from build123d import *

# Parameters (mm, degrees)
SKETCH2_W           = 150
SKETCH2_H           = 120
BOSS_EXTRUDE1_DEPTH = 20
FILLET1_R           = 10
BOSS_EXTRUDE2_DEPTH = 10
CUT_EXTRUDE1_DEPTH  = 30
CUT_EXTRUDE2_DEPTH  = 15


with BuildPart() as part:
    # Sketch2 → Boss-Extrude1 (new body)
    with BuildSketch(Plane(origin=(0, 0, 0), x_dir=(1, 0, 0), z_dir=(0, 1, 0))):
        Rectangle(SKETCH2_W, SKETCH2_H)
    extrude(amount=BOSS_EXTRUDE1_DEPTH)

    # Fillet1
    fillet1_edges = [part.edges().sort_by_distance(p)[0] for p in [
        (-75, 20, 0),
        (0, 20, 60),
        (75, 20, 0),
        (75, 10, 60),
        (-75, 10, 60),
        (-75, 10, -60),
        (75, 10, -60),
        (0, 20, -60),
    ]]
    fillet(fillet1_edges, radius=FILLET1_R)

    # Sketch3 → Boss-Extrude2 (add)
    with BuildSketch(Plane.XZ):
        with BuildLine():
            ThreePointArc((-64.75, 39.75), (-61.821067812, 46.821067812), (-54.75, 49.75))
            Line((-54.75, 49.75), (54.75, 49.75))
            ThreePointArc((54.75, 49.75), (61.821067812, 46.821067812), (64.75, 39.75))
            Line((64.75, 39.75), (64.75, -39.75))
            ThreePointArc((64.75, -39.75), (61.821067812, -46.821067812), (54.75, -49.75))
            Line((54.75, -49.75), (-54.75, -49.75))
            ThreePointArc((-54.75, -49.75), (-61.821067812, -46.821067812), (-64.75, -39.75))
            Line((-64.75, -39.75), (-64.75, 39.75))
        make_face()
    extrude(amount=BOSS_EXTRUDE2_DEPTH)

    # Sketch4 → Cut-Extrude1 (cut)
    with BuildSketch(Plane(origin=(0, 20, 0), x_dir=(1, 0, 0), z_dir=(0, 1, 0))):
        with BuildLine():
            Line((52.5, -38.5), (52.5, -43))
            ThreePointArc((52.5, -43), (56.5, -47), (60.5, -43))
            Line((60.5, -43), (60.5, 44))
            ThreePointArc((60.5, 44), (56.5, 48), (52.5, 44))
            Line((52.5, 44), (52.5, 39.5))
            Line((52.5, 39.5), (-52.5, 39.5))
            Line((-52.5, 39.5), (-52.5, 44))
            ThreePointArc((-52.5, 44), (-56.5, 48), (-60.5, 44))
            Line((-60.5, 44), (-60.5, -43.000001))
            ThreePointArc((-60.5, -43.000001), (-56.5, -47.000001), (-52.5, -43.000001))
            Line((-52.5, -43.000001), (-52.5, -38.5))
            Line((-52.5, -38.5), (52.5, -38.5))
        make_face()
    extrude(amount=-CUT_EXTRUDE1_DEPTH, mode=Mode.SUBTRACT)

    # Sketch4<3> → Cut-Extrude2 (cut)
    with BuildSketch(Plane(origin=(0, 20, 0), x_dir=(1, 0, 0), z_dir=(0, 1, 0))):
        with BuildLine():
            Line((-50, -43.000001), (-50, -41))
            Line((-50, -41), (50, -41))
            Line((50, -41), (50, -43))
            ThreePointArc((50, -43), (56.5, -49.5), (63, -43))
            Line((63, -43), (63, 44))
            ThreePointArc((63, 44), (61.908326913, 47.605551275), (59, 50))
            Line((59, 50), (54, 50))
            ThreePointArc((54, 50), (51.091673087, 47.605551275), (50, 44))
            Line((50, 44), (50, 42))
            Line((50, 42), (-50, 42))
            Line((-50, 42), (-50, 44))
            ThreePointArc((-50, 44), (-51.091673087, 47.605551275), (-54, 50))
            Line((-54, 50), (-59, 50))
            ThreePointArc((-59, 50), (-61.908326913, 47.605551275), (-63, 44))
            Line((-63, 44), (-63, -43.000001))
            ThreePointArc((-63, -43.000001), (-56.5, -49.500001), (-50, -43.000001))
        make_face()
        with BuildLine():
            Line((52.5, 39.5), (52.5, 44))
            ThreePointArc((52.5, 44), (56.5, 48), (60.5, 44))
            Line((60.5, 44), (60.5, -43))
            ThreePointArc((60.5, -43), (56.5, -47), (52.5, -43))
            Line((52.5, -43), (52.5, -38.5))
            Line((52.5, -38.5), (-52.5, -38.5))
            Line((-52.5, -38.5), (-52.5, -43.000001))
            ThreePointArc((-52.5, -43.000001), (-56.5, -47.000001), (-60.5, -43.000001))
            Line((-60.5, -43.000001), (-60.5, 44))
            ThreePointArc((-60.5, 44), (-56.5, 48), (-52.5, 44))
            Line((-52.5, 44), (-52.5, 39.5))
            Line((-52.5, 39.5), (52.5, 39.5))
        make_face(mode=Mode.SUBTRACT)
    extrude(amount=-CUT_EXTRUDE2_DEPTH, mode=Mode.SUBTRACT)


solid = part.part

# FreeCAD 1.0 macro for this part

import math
import FreeCAD as App
import Part
import Sketcher

V = App.Vector
Q = App.Units.Quantity


def edges_at(feature, points):
    """Names of the edges that pass closest to the given points."""
    edges = feature.Shape.Edges
    near = lambda p: min(range(len(edges)), key=lambda i: edges[i].distToShape(Part.Vertex(*p))[0])
    return sorted({f"Edge{near(p) + 1}" for p in points})

doc = App.newDocument("Part")
params = doc.addObject("Spreadsheet::Sheet", "Params")
for row, (alias, value) in enumerate([
    ("sketch1_width", "150 mm"),
    ("sketch1_height", "120 mm"),
    ("pad1_length", "20 mm"),
    ("fillet_radius", "10 mm"),
    ("sketch2_radius", "10 mm"),
    ("sketch2_width", "109.5 mm"),
    ("sketch2_height", "79.5 mm"),
    ("pad2_length", "10 mm"),
    ("sketch3_radius", "4 mm"),
    ("sketch3_width", "105 mm"),
    ("sketch3_height", "87 mm"),
    ("sketch3_height2", "4.5 mm"),
    ("pocket1_length", "30 mm"),
    ("sketch4_radius", "4 mm"),
    ("sketch4_radius2", "6.5 mm"),
    ("sketch4_width", "100 mm"),
    ("sketch4_width2", "5 mm"),
    ("sketch4_height", "2.000001 mm"),
    ("pocket2_length", "15 mm"),
], start=1):
    params.set(f"A{row}", alias)
    params.set(f"B{row}", "=" + value)
    params.setAlias(f"B{row}", alias)

body = doc.addObject("PartDesign::Body", "Body")

# Sketch on XZ plane
sketch1 = body.newObject("Sketcher::SketchObject", "Sketch")
sketch1.AttachmentSupport = (doc.getObject("XZ_Plane"), [""])
sketch1.MapMode = "FlatFace"
sketch1.addGeometry(Part.LineSegment(V(-75, -60, 0), V(-75, 60, 0)), False)
sketch1.addGeometry(Part.LineSegment(V(-75, 60, 0), V(75, 60, 0)), False)
sketch1.addGeometry(Part.LineSegment(V(75, 60, 0), V(75, -60, 0)), False)
sketch1.addGeometry(Part.LineSegment(V(75, -60, 0), V(-75, -60, 0)), False)
sketch1.addConstraint(Sketcher.Constraint("Coincident", 0, 2, 1, 1))
sketch1.addConstraint(Sketcher.Constraint("Coincident", 1, 2, 2, 1))
sketch1.addConstraint(Sketcher.Constraint("Coincident", 2, 2, 3, 1))
sketch1.addConstraint(Sketcher.Constraint("Coincident", 3, 2, 0, 1))
sketch1.addConstraint(Sketcher.Constraint("Vertical", 0))
sketch1.addConstraint(Sketcher.Constraint("Horizontal", 1))
sketch1.addConstraint(Sketcher.Constraint("Vertical", 2))
sketch1.addConstraint(Sketcher.Constraint("Horizontal", 3))
sketch1.addConstraint(Sketcher.Constraint("Symmetric", 0, 2, 2, 2, -1, 1))
sketch1.addConstraint(Sketcher.Constraint("DistanceX", 1, 1, 1, 2, Q("150 mm")))
sketch1.addConstraint(Sketcher.Constraint("DistanceY", 0, 1, 0, 2, Q("120 mm")))
sketch1.setExpression("Constraints[9]", "Params.sketch1_width")
sketch1.setExpression("Constraints[10]", "Params.sketch1_height")
pad1 = body.newObject("PartDesign::Pad", "Pad")
pad1.Profile = sketch1
pad1.setExpression("Length", "Params.pad1_length")
pad1.Reversed = True
doc.recompute()

fillet = body.newObject("PartDesign::Fillet", "Fillet")
fillet.Base = (pad1, edges_at(pad1, [
    (-75, 20, 0),
    (0, 20, 60),
    (75, 20, 0),
    (75, 10, 60),
    (-75, 10, 60),
    (-75, 10, -60),
    (75, 10, -60),
    (0, 20, -60),
]))
fillet.setExpression("Radius", "Params.fillet_radius")

# Sketch on XZ plane
sketch2 = body.newObject("Sketcher::SketchObject", "Sketch001")
sketch2.AttachmentSupport = (doc.getObject("XZ_Plane"), [""])
sketch2.MapMode = "FlatFace"
sketch2.addGeometry(Part.ArcOfCircle(Part.Circle(V(-54.75, 39.75, 0), V(0, 0, 1), 10), math.radians(90), math.radians(180)), False)
sketch2.addGeometry(Part.LineSegment(V(-64.75, 39.75, 0), V(-64.75, -39.75, 0)), False)
sketch2.addGeometry(Part.ArcOfCircle(Part.Circle(V(-54.75, -39.75, 0), V(0, 0, 1), 10), math.radians(180), math.radians(270)), False)
sketch2.addGeometry(Part.LineSegment(V(-54.75, -49.75, 0), V(54.75, -49.75, 0)), False)
sketch2.addGeometry(Part.ArcOfCircle(Part.Circle(V(54.75, -39.75, 0), V(0, 0, 1), 10), math.radians(-90), math.radians(0)), False)
sketch2.addGeometry(Part.LineSegment(V(64.75, -39.75, 0), V(64.75, 39.75, 0)), False)
sketch2.addGeometry(Part.ArcOfCircle(Part.Circle(V(54.75, 39.75, 0), V(0, 0, 1), 10), math.radians(0), math.radians(90)), False)
sketch2.addGeometry(Part.LineSegment(V(54.75, 49.75, 0), V(-54.75, 49.75, 0)), False)
sketch2.addConstraint(Sketcher.Constraint("Tangent", 0, 2, 1, 1))
sketch2.addConstraint(Sketcher.Constraint("Tangent", 1, 2, 2, 1))
sketch2.addConstraint(Sketcher.Constraint("Tangent", 2, 2, 3, 1))
sketch2.addConstraint(Sketcher.Constraint("Tangent", 3, 2, 4, 1))
sketch2.addConstraint(Sketcher.Constraint("Tangent", 4, 2, 5, 1))
sketch2.addConstraint(Sketcher.Constraint("Tangent", 5, 2, 6, 1))
sketch2.addConstraint(Sketcher.Constraint("Tangent", 6, 2, 7, 1))
sketch2.addConstraint(Sketcher.Constraint("Tangent", 7, 2, 0, 1))
sketch2.addConstraint(Sketcher.Constraint("Vertical", 1))
sketch2.addConstraint(Sketcher.Constraint("Horizontal", 3))
sketch2.addConstraint(Sketcher.Constraint("Vertical", 5))
sketch2.addConstraint(Sketcher.Constraint("Horizontal", 7))
sketch2.addConstraint(Sketcher.Constraint("Equal", 0, 2))
sketch2.addConstraint(Sketcher.Constraint("Equal", 2, 4))
sketch2.addConstraint(Sketcher.Constraint("Equal", 4, 6))
sketch2.addConstraint(Sketcher.Constraint("Symmetric", 0, 3, 4, 3, -1, 1))
sketch2.addConstraint(Sketcher.Constraint("Radius", 0, Q("10 mm")))
sketch2.addConstraint(Sketcher.Constraint("DistanceX", 3, 1, 3, 2, Q("109.5 mm")))
sketch2.addConstraint(Sketcher.Constraint("DistanceY", 1, 2, 1, 1, Q("79.5 mm")))
sketch2.setExpression("Constraints[16]", "Params.sketch2_radius")
sketch2.setExpression("Constraints[17]", "Params.sketch2_width")
sketch2.setExpression("Constraints[18]", "Params.sketch2_height")
pad2 = body.newObject("PartDesign::Pad", "Pad001")
pad2.Profile = sketch2
pad2.setExpression("Length", "Params.pad2_length")

# Sketch on XZ plane
sketch3 = body.newObject("Sketcher::SketchObject", "Sketch002")
sketch3.AttachmentSupport = (doc.getObject("XZ_Plane"), [""])
sketch3.MapMode = "FlatFace"
sketch3.AttachmentOffset = App.Placement(V(0, 0, -20), App.Rotation())
sketch3.addGeometry(Part.LineSegment(V(52.5, 38.5, 0), V(52.5, 43, 0)), False)
sketch3.addGeometry(Part.ArcOfCircle(Part.Circle(V(56.5, 43, 0), V(0, 0, 1), 4), math.radians(0), math.radians(180)), False)
sketch3.addGeometry(Part.LineSegment(V(60.5, 43, 0), V(60.5, -44, 0)), False)
sketch3.addGeometry(Part.ArcOfCircle(Part.Circle(V(56.5, -44, 0), V(0, 0, 1), 4), math.radians(180), math.radians(360)), False)
sketch3.addGeometry(Part.LineSegment(V(52.5, -44, 0), V(52.5, -39.5, 0)), False)
sketch3.addGeometry(Part.LineSegment(V(52.5, -39.5, 0), V(-52.5, -39.5, 0)), False)
sketch3.addGeometry(Part.LineSegment(V(-52.5, -39.5, 0), V(-52.5, -44, 0)), False)
sketch3.addGeometry(Part.ArcOfCircle(Part.Circle(V(-56.5, -44, 0), V(0, 0, 1), 4), math.radians(180), math.radians(360)), False)
sketch3.addGeometry(Part.LineSegment(V(-60.5, -44, 0), V(-60.5, 43.000001, 0)), False)
sketch3.addGeometry(Part.ArcOfCircle(Part.Circle(V(-56.5, 43.000001, 0), V(0, 0, 1), 4), math.radians(0), math.radians(180)), False)
sketch3.addGeometry(Part.LineSegment(V(-52.5, 43.000001, 0), V(-52.5, 38.5, 0)), False)
sketch3.addGeometry(Part.LineSegment(V(-52.5, 38.5, 0), V(52.5, 38.5, 0)), False)
sketch3.addConstraint(Sketcher.Constraint("Tangent", 0, 2, 1, 2))
sketch3.addConstraint(Sketcher.Constraint("Tangent", 1, 1, 2, 1))
sketch3.addConstraint(Sketcher.Constraint("Tangent", 2, 2, 3, 2))
sketch3.addConstraint(Sketcher.Constraint("Tangent", 3, 1, 4, 1))
sketch3.addConstraint(Sketcher.Constraint("Coincident", 4, 2, 5, 1))
sketch3.addConstraint(Sketcher.Constraint("Coincident", 5, 2, 6, 1))
sketch3.addConstraint(Sketcher.Constraint("Tangent", 6, 2, 7, 2))
sketch3.addConstraint(Sketcher.Constraint("Tangent", 7, 1, 8, 1))
sketch3.addConstraint(Sketcher.Constraint("Tangent", 8, 2, 9, 2))
sketch3.addConstraint(Sketcher.Constraint("Tangent", 9, 1, 10, 1))
sketch3.addConstraint(Sketcher.Constraint("Coincident", 10, 2, 11, 1))
sketch3.addConstraint(Sketcher.Constraint("Coincident", 11, 2, 0, 1))
sketch3.addConstraint(Sketcher.Constraint("Vertical", 0))
sketch3.addConstraint(Sketcher.Constraint("Vertical", 2))
sketch3.addConstraint(Sketcher.Constraint("Vertical", 4))
sketch3.addConstraint(Sketcher.Constraint("Horizontal", 5))
sketch3.addConstraint(Sketcher.Constraint("Vertical", 6))
sketch3.addConstraint(Sketcher.Constraint("Vertical", 8))
sketch3.addConstraint(Sketcher.Constraint("Vertical", 10))
sketch3.addConstraint(Sketcher.Constraint("Horizontal", 11))
sketch3.addConstraint(Sketcher.Constraint("Equal", 1, 3))
sketch3.addConstraint(Sketcher.Constraint("Equal", 3, 7))
sketch3.addConstraint(Sketcher.Constraint("Equal", 7, 9))
sketch3.addConstraint(Sketcher.Constraint("Symmetric", 3, 3, 7, 3, -2))
sketch3.addConstraint(Sketcher.Constraint("Horizontal", 1, 3, 9, 3))
sketch3.addConstraint(Sketcher.Constraint("Equal", 0, 4))
sketch3.addConstraint(Sketcher.Constraint("Radius", 1, Q("4 mm")))
sketch3.addConstraint(Sketcher.Constraint("DistanceX", 5, 2, 5, 1, Q("105 mm")))
sketch3.addConstraint(Sketcher.Constraint("DistanceY", 2, 2, 2, 1, Q("87 mm")))
sketch3.addConstraint(Sketcher.Constraint("DistanceY", 0, 1, 0, 2, Q("4.5 mm")))
sketch3.addConstraint(Sketcher.Constraint("DistanceY", -1, 1, 1, 3, Q("43 mm")))
sketch3.setExpression("Constraints[26]", "Params.sketch3_radius")
sketch3.setExpression("Constraints[27]", "Params.sketch3_width")
sketch3.setExpression("Constraints[28]", "Params.sketch3_height")
sketch3.setExpression("Constraints[29]", "Params.sketch3_height2")
pocket1 = body.newObject("PartDesign::Pocket", "Pocket")
pocket1.Profile = sketch3
pocket1.setExpression("Length", "Params.pocket1_length")
pocket1.Reversed = True

# Sketch on XZ plane
sketch4 = body.newObject("Sketcher::SketchObject", "Sketch003")
sketch4.AttachmentSupport = (doc.getObject("XZ_Plane"), [""])
sketch4.MapMode = "FlatFace"
sketch4.AttachmentOffset = App.Placement(V(0, 0, -20), App.Rotation())
sketch4.addGeometry(Part.LineSegment(V(-50, 43.000001, 0), V(-50, 41, 0)), False)
sketch4.addGeometry(Part.LineSegment(V(-50, 41, 0), V(50, 41, 0)), False)
sketch4.addGeometry(Part.LineSegment(V(50, 41, 0), V(50, 43, 0)), False)
sketch4.addGeometry(Part.ArcOfCircle(Part.Circle(V(56.5, 43, 0), V(0, 0, 1), 6.5), math.radians(0), math.radians(180)), False)
sketch4.addGeometry(Part.LineSegment(V(63, 43, 0), V(63, -44, 0)), False)
sketch4.addGeometry(Part.ArcOfCircle(Part.Circle(V(56.5, -44, 0), V(0, 0, 1), 6.5), math.radians(-67.380135), math.radians(0)), False)
sketch4.addGeometry(Part.LineSegment(V(59, -50, 0), V(54, -50, 0)), False)
sketch4.addGeometry(Part.ArcOfCircle(Part.Circle(V(56.5, -44, 0), V(0, 0, 1), 6.5), math.radians(-180), math.radians(-112.619865)), False)
sketch4.addGeometry(Part.LineSegment(V(50, -44, 0), V(50, -42, 0)), False)
sketch4.addGeometry(Part.LineSegment(V(50, -42, 0), V(-50, -42, 0)), False)
sketch4.addGeometry(Part.LineSegment(V(-50, -42, 0), V(-50, -44, 0)), False)
sketch4.addGeometry(Part.ArcOfCircle(Part.Circle(V(-56.5, -44, 0), V(0, 0, 1), 6.5), math.radians(-67.380135), math.radians(0)), False)
sketch4.addGeometry(Part.LineSegment(V(-54, -50, 0), V(-59, -50, 0)), False)
sketch4.addGeometry(Part.ArcOfCircle(Part.Circle(V(-56.5, -44, 0), V(0, 0, 1), 6.5), math.radians(-180), math.radians(-112.619865)), False)
sketch4.addGeometry(Part.LineSegment(V(-63, -44, 0), V(-63, 43.000001, 0)), False)
sketch4.addGeometry(Part.ArcOfCircle(Part.Circle(V(-56.5, 43.000001, 0), V(0, 0, 1), 6.5), math.radians(0), math.radians(180)), False)
sketch4.addGeometry(Part.LineSegment(V(-52.5, -39.5, 0), V(52.5, -39.5, 0)), False)
sketch4.addGeometry(Part.LineSegment(V(52.5, -39.5, 0), V(52.5, -44, 0)), False)
sketch4.addGeometry(Part.ArcOfCircle(Part.Circle(V(56.5, -44, 0), V(0, 0, 1), 4), math.radians(180), math.radians(360)), False)
sketch4.addGeometry(Part.LineSegment(V(60.5, -44, 0), V(60.5, 43, 0)), False)
sketch4.addGeometry(Part.ArcOfCircle(Part.Circle(V(56.5, 43, 0), V(0, 0, 1), 4), math.radians(0), math.radians(180)), False)
sketch4.addGeometry(Part.LineSegment(V(52.5, 43, 0), V(52.5, 38.5, 0)), False)
sketch4.addGeometry(Part.LineSegment(V(52.5, 38.5, 0), V(-52.5, 38.5, 0)), False)
sketch4.addGeometry(Part.LineSegment(V(-52.5, 38.5, 0), V(-52.5, 43.000001, 0)), False)
sketch4.addGeometry(Part.ArcOfCircle(Part.Circle(V(-56.5, 43.000001, 0), V(0, 0, 1), 4), math.radians(0), math.radians(180)), False)
sketch4.addGeometry(Part.LineSegment(V(-60.5, 43.000001, 0), V(-60.5, -44, 0)), False)
sketch4.addGeometry(Part.ArcOfCircle(Part.Circle(V(-56.5, -44, 0), V(0, 0, 1), 4), math.radians(180), math.radians(360)), False)
sketch4.addGeometry(Part.LineSegment(V(-52.5, -44, 0), V(-52.5, -39.5, 0)), False)
sketch4.addConstraint(Sketcher.Constraint("Coincident", 0, 2, 1, 1))
sketch4.addConstraint(Sketcher.Constraint("Coincident", 1, 2, 2, 1))
sketch4.addConstraint(Sketcher.Constraint("Tangent", 2, 2, 3, 2))
sketch4.addConstraint(Sketcher.Constraint("Tangent", 3, 1, 4, 1))
sketch4.addConstraint(Sketcher.Constraint("Tangent", 4, 2, 5, 2))
sketch4.addConstraint(Sketcher.Constraint("Coincident", 5, 1, 6, 1))
sketch4.addConstraint(Sketcher.Constraint("Coincident", 6, 2, 7, 2))
sketch4.addConstraint(Sketcher.Constraint("Tangent", 7, 1, 8, 1))
sketch4.addConstraint(Sketcher.Constraint("Coincident", 8, 2, 9, 1))
sketch4.addConstraint(Sketcher.Constraint("Coincident", 9, 2, 10, 1))
sketch4.addConstraint(Sketcher.Constraint("Tangent", 10, 2, 11, 2))
sketch4.addConstraint(Sketcher.Constraint("Coincident", 11, 1, 12, 1))
sketch4.addConstraint(Sketcher.Constraint("Coincident", 12, 2, 13, 2))
sketch4.addConstraint(Sketcher.Constraint("Tangent", 13, 1, 14, 1))
sketch4.addConstraint(Sketcher.Constraint("Tangent", 14, 2, 15, 2))
sketch4.addConstraint(Sketcher.Constraint("Tangent", 15, 1, 0, 1))
sketch4.addConstraint(Sketcher.Constraint("Coincident", 16, 2, 17, 1))
sketch4.addConstraint(Sketcher.Constraint("Tangent", 17, 2, 18, 1))
sketch4.addConstraint(Sketcher.Constraint("Tangent", 18, 2, 19, 1))
sketch4.addConstraint(Sketcher.Constraint("Tangent", 19, 2, 20, 1))
sketch4.addConstraint(Sketcher.Constraint("Tangent", 20, 2, 21, 1))
sketch4.addConstraint(Sketcher.Constraint("Coincident", 21, 2, 22, 1))
sketch4.addConstraint(Sketcher.Constraint("Coincident", 22, 2, 23, 1))
sketch4.addConstraint(Sketcher.Constraint("Tangent", 23, 2, 24, 1))
sketch4.addConstraint(Sketcher.Constraint("Tangent", 24, 2, 25, 1))
sketch4.addConstraint(Sketcher.Constraint("Tangent", 25, 2, 26, 1))
sketch4.addConstraint(Sketcher.Constraint("Tangent", 26, 2, 27, 1))
sketch4.addConstraint(Sketcher.Constraint("Coincident", 27, 2, 16, 1))
sketch4.addConstraint(Sketcher.Constraint("Vertical", 0))
sketch4.addConstraint(Sketcher.Constraint("Horizontal", 1))
sketch4.addConstraint(Sketcher.Constraint("Vertical", 2))
sketch4.addConstraint(Sketcher.Constraint("Vertical", 4))
sketch4.addConstraint(Sketcher.Constraint("Horizontal", 6))
sketch4.addConstraint(Sketcher.Constraint("Vertical", 8))
sketch4.addConstraint(Sketcher.Constraint("Horizontal", 9))
sketch4.addConstraint(Sketcher.Constraint("Vertical", 10))
sketch4.addConstraint(Sketcher.Constraint("Horizontal", 12))
sketch4.addConstraint(Sketcher.Constraint("Vertical", 14))
sketch4.addConstraint(Sketcher.Constraint("Horizontal", 16))
sketch4.addConstraint(Sketcher.Constraint("Vertical", 17))
sketch4.addConstraint(Sketcher.Constraint("Vertical", 19))
sketch4.addConstraint(Sketcher.Constraint("Vertical", 21))
sketch4.addConstraint(Sketcher.Constraint("Horizontal", 22))
sketch4.addConstraint(Sketcher.Constraint("Vertical", 23))
sketch4.addConstraint(Sketcher.Constraint("Vertical", 25))
sketch4.addConstraint(Sketcher.Constraint("Vertical", 27))
sketch4.addConstraint(Sketcher.Constraint("Coincident", 7, 3, 5, 3))
sketch4.addConstraint(Sketcher.Constraint("Coincident", 13, 3, 11, 3))
sketch4.addConstraint(Sketcher.Constraint("Coincident", 18, 3, 5, 3))
sketch4.addConstraint(Sketcher.Constraint("Coincident", 20, 3, 3, 3))
sketch4.addConstraint(Sketcher.Constraint("Coincident", 24, 3, 15, 3))
sketch4.addConstraint(Sketcher.Constraint("Coincident", 26, 3, 11, 3))
sketch4.addConstraint(Sketcher.Constraint("Equal", 3, 5))
sketch4.addConstraint(Sketcher.Constraint("Equal", 5, 7))
sketch4.addConstraint(Sketcher.Constraint("Equal", 7, 11))
sketch4.addConstraint(Sketcher.Constraint("Equal", 11, 13))
sketch4.addConstraint(Sketcher.Constraint("Equal", 13, 15))
sketch4.addConstraint(Sketcher.Constraint("Equal", 20, 24))
sketch4.addConstraint(Sketcher.Constraint("Symmetric", 5, 3, 11, 3, -2))
sketch4.addConstraint(Sketcher.Constraint("Horizontal", 3, 3, 15, 3))
sketch4.addConstraint(Sketcher.Constraint("Horizontal", 6, 2, 11, 1))
sketch4.addConstraint(Sketcher.Constraint("Equal", 2, 8))
sketch4.addConstraint(Sketcher.Constraint("Equal", 17, 21))
sketch4.addConstraint(Sketcher.Constraint("Radius", 18, Q("4 mm")))
sketch4.addConstraint(Sketcher.Constraint("Radius", 3, Q("6.5 mm")))
sketch4.addConstraint(Sketcher.Constraint("DistanceX", 1, 1, 1, 2, Q("100 mm")))
sketch4.addConstraint(Sketcher.Constraint("DistanceX", 6, 2, 6, 1, Q("5 mm")))
sketch4.addConstraint(Sketcher.Constraint("DistanceY", 0, 2, 0, 1, Q("2.000001 mm")))
sketch4.addConstraint(Sketcher.Constraint("DistanceY", 4, 2, 4, 1, Q("87 mm")))
sketch4.addConstraint(Sketcher.Constraint("DistanceY", 17, 2, 17, 1, Q("4.5 mm")))
sketch4.addConstraint(Sketcher.Constraint("DistanceY", -1, 1, 3, 3, Q("43 mm")))
sketch4.setExpression("Constraints[63]", "Params.sketch4_radius")
sketch4.setExpression("Constraints[64]", "Params.sketch4_radius2")
sketch4.setExpression("Constraints[65]", "Params.sketch4_width")
sketch4.setExpression("Constraints[66]", "Params.sketch4_width2")
sketch4.setExpression("Constraints[67]", "Params.sketch4_height")
pocket2 = body.newObject("PartDesign::Pocket", "Pocket001")
pocket2.Profile = sketch4
pocket2.setExpression("Length", "Params.pocket2_length")
pocket2.Reversed = True

doc.recompute()
